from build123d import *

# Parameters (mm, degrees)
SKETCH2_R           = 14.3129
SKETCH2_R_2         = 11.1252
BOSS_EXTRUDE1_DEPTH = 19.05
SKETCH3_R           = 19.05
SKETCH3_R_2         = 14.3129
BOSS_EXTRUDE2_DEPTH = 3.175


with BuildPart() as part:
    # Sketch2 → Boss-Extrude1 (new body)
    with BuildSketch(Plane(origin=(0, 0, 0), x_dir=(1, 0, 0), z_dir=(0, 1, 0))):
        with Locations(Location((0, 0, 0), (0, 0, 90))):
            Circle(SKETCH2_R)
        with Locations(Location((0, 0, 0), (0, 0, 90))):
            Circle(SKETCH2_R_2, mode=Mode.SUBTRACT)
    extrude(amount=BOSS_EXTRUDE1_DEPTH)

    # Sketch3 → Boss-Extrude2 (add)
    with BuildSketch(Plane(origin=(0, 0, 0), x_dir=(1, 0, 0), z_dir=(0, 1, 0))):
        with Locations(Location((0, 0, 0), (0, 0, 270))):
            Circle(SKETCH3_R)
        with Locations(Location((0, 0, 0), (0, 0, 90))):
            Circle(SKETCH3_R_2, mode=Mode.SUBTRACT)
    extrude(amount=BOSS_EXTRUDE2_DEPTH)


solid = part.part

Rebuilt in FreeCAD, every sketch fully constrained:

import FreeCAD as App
import Part
import Sketcher
from FreeCAD import Vector
Q = App.Units.Quantity

doc = App.newDocument("Part")
params = doc.addObject("Spreadsheet::Sheet", "Params")
for row, (alias, value) in enumerate([
    ("sketch1_diameter", "1.127 in"),
    ("sketch1_diameter2", "0.876 in"),
    ("pad1_length", "0.75 in"),
    ("sketch2_diameter", "1.5 in"),
    ("sketch2_diameter2", "1.127 in"),
    ("pad2_length", "0.125 in"),
], start=1):
    params.set(f"A{row}", alias)
    params.set(f"B{row}", "=" + value)
    params.setAlias(f"B{row}", alias)

body = doc.addObject("PartDesign::Body", "Body")

sketch1 = body.newObject("Sketcher::SketchObject", "Sketch")
sketch1.AttachmentSupport = (doc.getObject("XZ_Plane"), [""])
sketch1.MapMode = "FlatFace"
sketch1.addGeometry([
    Part.Circle(Vector(0, 0, 0), Vector(0, 0, 1), 14),
    Part.Circle(Vector(0, 0, 0), Vector(0, 0, 1), 11),
], False)
sketch1.addConstraint([
    Sketcher.Constraint("Coincident", 0, 3, -1, 1),
    Sketcher.Constraint("Coincident", 1, 3, -1, 1),
    Sketcher.Constraint("Diameter", 0, Q("1.127 in")),
    Sketcher.Constraint("Diameter", 1, Q("0.876 in")),
])
sketch1.setExpression("Constraints[2]", "Params.sketch1_diameter")
sketch1.setExpression("Constraints[3]", "Params.sketch1_diameter2")
pad1 = body.newObject("PartDesign::Pad", "Pad")
pad1.Profile = sketch1
pad1.setExpression("Length", "Params.pad1_length")
pad1.Reversed = True

sketch2 = body.newObject("Sketcher::SketchObject", "Sketch001")
sketch2.AttachmentSupport = (doc.getObject("XZ_Plane"), [""])
sketch2.MapMode = "FlatFace"
sketch2.addGeometry([
    Part.Circle(Vector(0, 0, 0), Vector(0, 0, 1), 19),
    Part.Circle(Vector(0, 0, 0), Vector(0, 0, 1), 14),
], False)
sketch2.addConstraint([
    Sketcher.Constraint("Coincident", 0, 3, -1, 1),
    Sketcher.Constraint("Coincident", 1, 3, -1, 1),
    Sketcher.Constraint("Diameter", 0, Q("1.5 in")),
    Sketcher.Constraint("Diameter", 1, Q("1.127 in")),
])
sketch2.setExpression("Constraints[2]", "Params.sketch2_diameter")
sketch2.setExpression("Constraints[3]", "Params.sketch2_diameter2")
pad2 = body.newObject("PartDesign::Pad", "Pad001")
pad2.Profile = sketch2
pad2.setExpression("Length", "Params.pad2_length")
pad2.Reversed = True

doc.recompute()
